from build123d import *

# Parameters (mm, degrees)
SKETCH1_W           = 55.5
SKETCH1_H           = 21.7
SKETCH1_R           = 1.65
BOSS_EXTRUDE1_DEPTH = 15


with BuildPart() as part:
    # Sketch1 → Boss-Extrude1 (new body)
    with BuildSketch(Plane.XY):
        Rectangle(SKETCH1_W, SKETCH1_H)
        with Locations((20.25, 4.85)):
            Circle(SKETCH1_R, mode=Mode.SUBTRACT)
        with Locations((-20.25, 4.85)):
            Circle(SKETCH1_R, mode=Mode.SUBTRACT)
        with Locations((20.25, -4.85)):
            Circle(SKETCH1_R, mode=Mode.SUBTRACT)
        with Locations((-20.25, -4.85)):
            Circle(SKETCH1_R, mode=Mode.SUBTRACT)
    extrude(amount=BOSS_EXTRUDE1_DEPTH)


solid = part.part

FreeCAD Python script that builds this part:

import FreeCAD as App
import Part
import Sketcher

V = App.Vector
Q = App.Units.Quantity

doc = App.newDocument("Part")
params = doc.addObject("Spreadsheet::Sheet", "Params")
for row, (alias, value) in enumerate([
    ("sketch1_diameter", "3.3 mm"),
    ("sketch1_width", "55.5 mm"),
    ("sketch1_height", "21.7 mm"),
    ("pad1_length", "15 mm"),
], start=1):
    params.set(f"A{row}", alias)
    params.set(f"B{row}", "=" + value)
    params.setAlias(f"B{row}", alias)

body = doc.addObject("PartDesign::Body", "Body")

sketch1 = body.newObject("Sketcher::SketchObject", "Sketch")
sketch1.AttachmentSupport = (doc.getObject("XY_Plane"), [""])
sketch1.MapMode = "FlatFace"
sketch1.addGeometry(Part.LineSegment(V(-27.8, 10.8, 0), V(-27.8, -10.8, 0)), False)
sketch1.addGeometry(Part.LineSegment(V(-27.8, -10.8, 0), V(27.8, -10.8, 0)), False)
sketch1.addGeometry(Part.LineSegment(V(27.8, -10.8, 0), V(27.8, 10.8, 0)), False)
sketch1.addGeometry(Part.LineSegment(V(27.8, 10.8, 0), V(-27.8, 10.8, 0)), False)
sketch1.addGeometry(Part.Circle(V(-20.2, -4.8, 0), V(0, 0, 1), 1.6), False)
sketch1.addGeometry(Part.Circle(V(20.2, -4.8, 0), V(0, 0, 1), 1.6), False)
sketch1.addGeometry(Part.Circle(V(-20.2, 4.8, 0), V(0, 0, 1), 1.6), False)
sketch1.addGeometry(Part.Circle(V(20.2, 4.8, 0), V(0, 0, 1), 1.6), False)
sketch1.addConstraint(Sketcher.Constraint("Coincident", 0, 2, 1, 1))
sketch1.addConstraint(Sketcher.Constraint("Coincident", 1, 2, 2, 1))
sketch1.addConstraint(Sketcher.Constraint("Coincident", 2, 2, 3, 1))
sketch1.addConstraint(Sketcher.Constraint("Coincident", 3, 2, 0, 1))
sketch1.addConstraint(Sketcher.Constraint("Vertical", 0))
sketch1.addConstraint(Sketcher.Constraint("Horizontal", 1))
sketch1.addConstraint(Sketcher.Constraint("Vertical", 2))
sketch1.addConstraint(Sketcher.Constraint("Horizontal", 3))
sketch1.addConstraint(Sketcher.Constraint("Equal", 4, 5))
sketch1.addConstraint(Sketcher.Constraint("Equal", 5, 6))
sketch1.addConstraint(Sketcher.Constraint("Equal", 6, 7))
sketch1.addConstraint(Sketcher.Constraint("Symmetric", 5, 3, 6, 3, -1, 1))
sketch1.addConstraint(Sketcher.Constraint("Symmetric", 4, 3, 7, 3, -1, 1))
sketch1.addConstraint(Sketcher.Constraint("Symmetric", 0, 2, 2, 2, -1, 1))
sketch1.addConstraint(Sketcher.Constraint("Symmetric", 4, 3, 5, 3, -2))
sketch1.addConstraint(Sketcher.Constraint("Diameter", 4, Q("3.3 mm")))
sketch1.addConstraint(Sketcher.Constraint("DistanceX", 1, 1, 1, 2, Q("55.5 mm")))
sketch1.addConstraint(Sketcher.Constraint("DistanceY", 0, 2, 0, 1, Q("21.7 mm")))
sketch1.addConstraint(Sketcher.Constraint("DistanceY", 0, 2, 4, 3, Q("6 mm")))
sketch1.addConstraint(Sketcher.Constraint("DistanceX", 0, 2, 5, 3, Q("48 mm")))
sketch1.setExpression("Constraints[15]", "Params.sketch1_diameter")
sketch1.setExpression("Constraints[16]", "Params.sketch1_width")
sketch1.setExpression("Constraints[17]", "Params.sketch1_height")
pad1 = body.newObject("PartDesign::Pad", "Pad")
pad1.Profile = sketch1
pad1.setExpression("Length", "Params.pad1_length")

doc.recompute()
